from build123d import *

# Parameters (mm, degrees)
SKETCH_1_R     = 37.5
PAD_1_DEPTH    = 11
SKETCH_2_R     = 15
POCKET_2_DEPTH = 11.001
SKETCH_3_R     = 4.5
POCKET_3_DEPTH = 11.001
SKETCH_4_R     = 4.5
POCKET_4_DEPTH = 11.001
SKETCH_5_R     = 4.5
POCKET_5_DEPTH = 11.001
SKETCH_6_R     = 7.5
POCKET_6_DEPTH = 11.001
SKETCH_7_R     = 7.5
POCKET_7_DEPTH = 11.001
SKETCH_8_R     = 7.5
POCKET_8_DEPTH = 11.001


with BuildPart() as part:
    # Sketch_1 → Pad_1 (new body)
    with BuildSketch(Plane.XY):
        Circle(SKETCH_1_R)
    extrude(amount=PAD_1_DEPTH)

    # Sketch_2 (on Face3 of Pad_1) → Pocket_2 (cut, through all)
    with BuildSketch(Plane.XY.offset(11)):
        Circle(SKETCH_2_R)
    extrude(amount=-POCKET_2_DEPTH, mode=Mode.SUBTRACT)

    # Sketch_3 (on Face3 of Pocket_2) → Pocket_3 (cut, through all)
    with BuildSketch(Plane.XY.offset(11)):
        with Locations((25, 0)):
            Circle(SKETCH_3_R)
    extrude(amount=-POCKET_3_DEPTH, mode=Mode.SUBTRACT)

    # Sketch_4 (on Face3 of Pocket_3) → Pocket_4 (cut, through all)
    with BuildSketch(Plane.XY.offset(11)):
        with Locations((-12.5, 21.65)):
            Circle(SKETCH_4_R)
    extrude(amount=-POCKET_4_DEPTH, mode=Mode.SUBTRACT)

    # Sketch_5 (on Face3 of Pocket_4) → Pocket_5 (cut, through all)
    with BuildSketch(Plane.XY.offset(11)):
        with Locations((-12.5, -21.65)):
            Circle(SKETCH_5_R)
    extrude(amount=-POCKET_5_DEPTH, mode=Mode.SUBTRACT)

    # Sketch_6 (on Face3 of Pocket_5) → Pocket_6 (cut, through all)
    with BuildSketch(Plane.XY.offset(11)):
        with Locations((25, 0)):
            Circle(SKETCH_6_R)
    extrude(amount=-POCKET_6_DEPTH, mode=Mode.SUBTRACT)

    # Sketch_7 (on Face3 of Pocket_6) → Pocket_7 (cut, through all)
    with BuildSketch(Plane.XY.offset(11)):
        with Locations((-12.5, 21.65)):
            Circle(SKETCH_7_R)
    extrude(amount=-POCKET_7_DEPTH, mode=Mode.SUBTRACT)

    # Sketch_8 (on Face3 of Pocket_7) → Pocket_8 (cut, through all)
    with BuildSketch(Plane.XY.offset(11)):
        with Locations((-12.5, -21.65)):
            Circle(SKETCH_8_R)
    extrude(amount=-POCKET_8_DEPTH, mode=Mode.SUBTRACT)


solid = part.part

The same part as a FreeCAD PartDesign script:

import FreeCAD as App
import Part
import Sketcher
from FreeCAD import Vector

doc = App.newDocument("Part")
body = doc.addObject("PartDesign::Body", "Body")

# Sketch on XY plane
sketch1 = body.newObject("Sketcher::SketchObject", "Sketch")
sketch1.AttachmentSupport = (doc.getObject("XY_Plane"), [""])
sketch1.MapMode = "FlatFace"
sketch1.addGeometry(Part.Circle(Vector(0, 0, 0), Vector(0, 0, 1), 38), False)
sketch1.addConstraint(Sketcher.Constraint("Coincident", 0, 3, -1, 1))
sketch1.addConstraint(Sketcher.Constraint("Diameter", 0, 75.0))
pad1 = body.newObject("PartDesign::Pad", "Pad")
pad1.Profile = sketch1
pad1.Length = 11

# Sketch on XY plane
sketch2 = body.newObject("Sketcher::SketchObject", "Sketch001")
sketch2.AttachmentSupport = (doc.getObject("XY_Plane"), [""])
sketch2.MapMode = "FlatFace"
sketch2.AttachmentOffset = App.Placement(Vector(0, 0, 11), App.Rotation())
sketch2.addGeometry(Part.Circle(Vector(0, 0, 0), Vector(0, 0, 1), 15), False)
sketch2.addConstraint(Sketcher.Constraint("Coincident", 0, 3, -1, 1))
sketch2.addConstraint(Sketcher.Constraint("Diameter", 0, 30.0))
pocket1 = body.newObject("PartDesign::Pocket", "Pocket")
pocket1.Profile = sketch2
pocket1.Type = "ThroughAll"

# Sketch on XY plane
sketch3 = body.newObject("Sketcher::SketchObject", "Sketch002")
sketch3.AttachmentSupport = (doc.getObject("XY_Plane"), [""])
sketch3.MapMode = "FlatFace"
sketch3.AttachmentOffset = App.Placement(Vector(0, 0, 11), App.Rotation())
sketch3.addGeometry(Part.Circle(Vector(25, 0, 0), Vector(0, 0, 1), 4.5), False)
sketch3.addConstraint(Sketcher.Constraint("PointOnObject", 0, 3, -1))
sketch3.addConstraint(Sketcher.Constraint("Diameter", 0, 9.0))
sketch3.addConstraint(Sketcher.Constraint("DistanceX", -1, 1, 0, 3, 25.0))
pocket2 = body.newObject("PartDesign::Pocket", "Pocket001")
pocket2.Profile = sketch3
pocket2.Type = "ThroughAll"

# Sketch on XY plane
sketch4 = body.newObject("Sketcher::SketchObject", "Sketch003")
sketch4.AttachmentSupport = (doc.getObject("XY_Plane"), [""])
sketch4.MapMode = "FlatFace"
sketch4.AttachmentOffset = App.Placement(Vector(0, 0, 11), App.Rotation())
sketch4.addGeometry(Part.Circle(Vector(-12.5, 21.6, 0), Vector(0, 0, 1), 4.5), False)
sketch4.addConstraint(Sketcher.Constraint("Diameter", 0, 9.0))
sketch4.addConstraint(Sketcher.Constraint("DistanceX", 0, 3, -1, 1, 12.5))
sketch4.addConstraint(Sketcher.Constraint("DistanceY", -1, 1, 0, 3, 21.65))
pocket3 = body.newObject("PartDesign::Pocket", "Pocket002")
pocket3.Profile = sketch4
pocket3.Type = "ThroughAll"

# Sketch on XY plane
sketch5 = body.newObject("Sketcher::SketchObject", "Sketch004")
sketch5.AttachmentSupport = (doc.getObject("XY_Plane"), [""])
sketch5.MapMode = "FlatFace"
sketch5.AttachmentOffset = App.Placement(Vector(0, 0, 11), App.Rotation())
sketch5.addGeometry(Part.Circle(Vector(-12.5, -21.6, 0), Vector(0, 0, 1), 4.5), False)
sketch5.addConstraint(Sketcher.Constraint("Diameter", 0, 9.0))
sketch5.addConstraint(Sketcher.Constraint("DistanceX", 0, 3, -1, 1, 12.5))
sketch5.addConstraint(Sketcher.Constraint("DistanceY", 0, 3, -1, 1, 21.65))
pocket4 = body.newObject("PartDesign::Pocket", "Pocket003")
pocket4.Profile = sketch5
pocket4.Type = "ThroughAll"

# Sketch on XY plane
sketch6 = body.newObject("Sketcher::SketchObject", "Sketch005")
sketch6.AttachmentSupport = (doc.getObject("XY_Plane"), [""])
sketch6.MapMode = "FlatFace"
sketch6.AttachmentOffset = App.Placement(Vector(0, 0, 11), App.Rotation())
sketch6.addGeometry(Part.Circle(Vector(25, 0, 0), Vector(0, 0, 1), 8), False)
sketch6.addConstraint(Sketcher.Constraint("PointOnObject", 0, 3, -1))
sketch6.addConstraint(Sketcher.Constraint("Diameter", 0, 15.0))
sketch6.addConstraint(Sketcher.Constraint("DistanceX", -1, 1, 0, 3, 25.0))
pocket5 = body.newObject("PartDesign::Pocket", "Pocket004")
pocket5.Profile = sketch6
pocket5.Type = "ThroughAll"

# Sketch on XY plane
sketch7 = body.newObject("Sketcher::SketchObject", "Sketch006")
sketch7.AttachmentSupport = (doc.getObject("XY_Plane"), [""])
sketch7.MapMode = "FlatFace"
sketch7.AttachmentOffset = App.Placement(Vector(0, 0, 11), App.Rotation())
sketch7.addGeometry(Part.Circle(Vector(-12, 22, 0), Vector(0, 0, 1), 8), False)
sketch7.addConstraint(Sketcher.Constraint("Diameter", 0, 15.0))
sketch7.addConstraint(Sketcher.Constraint("DistanceX", 0, 3, -1, 1, 12.5))
sketch7.addConstraint(Sketcher.Constraint("DistanceY", -1, 1, 0, 3, 21.65))
pocket6 = body.newObject("PartDesign::Pocket", "Pocket005")
pocket6.Profile = sketch7
pocket6.Type = "ThroughAll"

# Sketch on XY plane
sketch8 = body.newObject("Sketcher::SketchObject", "Sketch007")
sketch8.AttachmentSupport = (doc.getObject("XY_Plane"), [""])
sketch8.MapMode = "FlatFace"
sketch8.AttachmentOffset = App.Placement(Vector(0, 0, 11), App.Rotation())
sketch8.addGeometry(Part.Circle(Vector(-12, -22, 0), Vector(0, 0, 1), 8), False)
sketch8.addConstraint(Sketcher.Constraint("Diameter", 0, 15.0))
sketch8.addConstraint(Sketcher.Constraint("DistanceX", 0, 3, -1, 1, 12.5))
sketch8.addConstraint(Sketcher.Constraint("DistanceY", 0, 3, -1, 1, 21.65))
pocket7 = body.newObject("PartDesign::Pocket", "Pocket006")
pocket7.Profile = sketch8
pocket7.Type = "ThroughAll"

doc.recompute()
